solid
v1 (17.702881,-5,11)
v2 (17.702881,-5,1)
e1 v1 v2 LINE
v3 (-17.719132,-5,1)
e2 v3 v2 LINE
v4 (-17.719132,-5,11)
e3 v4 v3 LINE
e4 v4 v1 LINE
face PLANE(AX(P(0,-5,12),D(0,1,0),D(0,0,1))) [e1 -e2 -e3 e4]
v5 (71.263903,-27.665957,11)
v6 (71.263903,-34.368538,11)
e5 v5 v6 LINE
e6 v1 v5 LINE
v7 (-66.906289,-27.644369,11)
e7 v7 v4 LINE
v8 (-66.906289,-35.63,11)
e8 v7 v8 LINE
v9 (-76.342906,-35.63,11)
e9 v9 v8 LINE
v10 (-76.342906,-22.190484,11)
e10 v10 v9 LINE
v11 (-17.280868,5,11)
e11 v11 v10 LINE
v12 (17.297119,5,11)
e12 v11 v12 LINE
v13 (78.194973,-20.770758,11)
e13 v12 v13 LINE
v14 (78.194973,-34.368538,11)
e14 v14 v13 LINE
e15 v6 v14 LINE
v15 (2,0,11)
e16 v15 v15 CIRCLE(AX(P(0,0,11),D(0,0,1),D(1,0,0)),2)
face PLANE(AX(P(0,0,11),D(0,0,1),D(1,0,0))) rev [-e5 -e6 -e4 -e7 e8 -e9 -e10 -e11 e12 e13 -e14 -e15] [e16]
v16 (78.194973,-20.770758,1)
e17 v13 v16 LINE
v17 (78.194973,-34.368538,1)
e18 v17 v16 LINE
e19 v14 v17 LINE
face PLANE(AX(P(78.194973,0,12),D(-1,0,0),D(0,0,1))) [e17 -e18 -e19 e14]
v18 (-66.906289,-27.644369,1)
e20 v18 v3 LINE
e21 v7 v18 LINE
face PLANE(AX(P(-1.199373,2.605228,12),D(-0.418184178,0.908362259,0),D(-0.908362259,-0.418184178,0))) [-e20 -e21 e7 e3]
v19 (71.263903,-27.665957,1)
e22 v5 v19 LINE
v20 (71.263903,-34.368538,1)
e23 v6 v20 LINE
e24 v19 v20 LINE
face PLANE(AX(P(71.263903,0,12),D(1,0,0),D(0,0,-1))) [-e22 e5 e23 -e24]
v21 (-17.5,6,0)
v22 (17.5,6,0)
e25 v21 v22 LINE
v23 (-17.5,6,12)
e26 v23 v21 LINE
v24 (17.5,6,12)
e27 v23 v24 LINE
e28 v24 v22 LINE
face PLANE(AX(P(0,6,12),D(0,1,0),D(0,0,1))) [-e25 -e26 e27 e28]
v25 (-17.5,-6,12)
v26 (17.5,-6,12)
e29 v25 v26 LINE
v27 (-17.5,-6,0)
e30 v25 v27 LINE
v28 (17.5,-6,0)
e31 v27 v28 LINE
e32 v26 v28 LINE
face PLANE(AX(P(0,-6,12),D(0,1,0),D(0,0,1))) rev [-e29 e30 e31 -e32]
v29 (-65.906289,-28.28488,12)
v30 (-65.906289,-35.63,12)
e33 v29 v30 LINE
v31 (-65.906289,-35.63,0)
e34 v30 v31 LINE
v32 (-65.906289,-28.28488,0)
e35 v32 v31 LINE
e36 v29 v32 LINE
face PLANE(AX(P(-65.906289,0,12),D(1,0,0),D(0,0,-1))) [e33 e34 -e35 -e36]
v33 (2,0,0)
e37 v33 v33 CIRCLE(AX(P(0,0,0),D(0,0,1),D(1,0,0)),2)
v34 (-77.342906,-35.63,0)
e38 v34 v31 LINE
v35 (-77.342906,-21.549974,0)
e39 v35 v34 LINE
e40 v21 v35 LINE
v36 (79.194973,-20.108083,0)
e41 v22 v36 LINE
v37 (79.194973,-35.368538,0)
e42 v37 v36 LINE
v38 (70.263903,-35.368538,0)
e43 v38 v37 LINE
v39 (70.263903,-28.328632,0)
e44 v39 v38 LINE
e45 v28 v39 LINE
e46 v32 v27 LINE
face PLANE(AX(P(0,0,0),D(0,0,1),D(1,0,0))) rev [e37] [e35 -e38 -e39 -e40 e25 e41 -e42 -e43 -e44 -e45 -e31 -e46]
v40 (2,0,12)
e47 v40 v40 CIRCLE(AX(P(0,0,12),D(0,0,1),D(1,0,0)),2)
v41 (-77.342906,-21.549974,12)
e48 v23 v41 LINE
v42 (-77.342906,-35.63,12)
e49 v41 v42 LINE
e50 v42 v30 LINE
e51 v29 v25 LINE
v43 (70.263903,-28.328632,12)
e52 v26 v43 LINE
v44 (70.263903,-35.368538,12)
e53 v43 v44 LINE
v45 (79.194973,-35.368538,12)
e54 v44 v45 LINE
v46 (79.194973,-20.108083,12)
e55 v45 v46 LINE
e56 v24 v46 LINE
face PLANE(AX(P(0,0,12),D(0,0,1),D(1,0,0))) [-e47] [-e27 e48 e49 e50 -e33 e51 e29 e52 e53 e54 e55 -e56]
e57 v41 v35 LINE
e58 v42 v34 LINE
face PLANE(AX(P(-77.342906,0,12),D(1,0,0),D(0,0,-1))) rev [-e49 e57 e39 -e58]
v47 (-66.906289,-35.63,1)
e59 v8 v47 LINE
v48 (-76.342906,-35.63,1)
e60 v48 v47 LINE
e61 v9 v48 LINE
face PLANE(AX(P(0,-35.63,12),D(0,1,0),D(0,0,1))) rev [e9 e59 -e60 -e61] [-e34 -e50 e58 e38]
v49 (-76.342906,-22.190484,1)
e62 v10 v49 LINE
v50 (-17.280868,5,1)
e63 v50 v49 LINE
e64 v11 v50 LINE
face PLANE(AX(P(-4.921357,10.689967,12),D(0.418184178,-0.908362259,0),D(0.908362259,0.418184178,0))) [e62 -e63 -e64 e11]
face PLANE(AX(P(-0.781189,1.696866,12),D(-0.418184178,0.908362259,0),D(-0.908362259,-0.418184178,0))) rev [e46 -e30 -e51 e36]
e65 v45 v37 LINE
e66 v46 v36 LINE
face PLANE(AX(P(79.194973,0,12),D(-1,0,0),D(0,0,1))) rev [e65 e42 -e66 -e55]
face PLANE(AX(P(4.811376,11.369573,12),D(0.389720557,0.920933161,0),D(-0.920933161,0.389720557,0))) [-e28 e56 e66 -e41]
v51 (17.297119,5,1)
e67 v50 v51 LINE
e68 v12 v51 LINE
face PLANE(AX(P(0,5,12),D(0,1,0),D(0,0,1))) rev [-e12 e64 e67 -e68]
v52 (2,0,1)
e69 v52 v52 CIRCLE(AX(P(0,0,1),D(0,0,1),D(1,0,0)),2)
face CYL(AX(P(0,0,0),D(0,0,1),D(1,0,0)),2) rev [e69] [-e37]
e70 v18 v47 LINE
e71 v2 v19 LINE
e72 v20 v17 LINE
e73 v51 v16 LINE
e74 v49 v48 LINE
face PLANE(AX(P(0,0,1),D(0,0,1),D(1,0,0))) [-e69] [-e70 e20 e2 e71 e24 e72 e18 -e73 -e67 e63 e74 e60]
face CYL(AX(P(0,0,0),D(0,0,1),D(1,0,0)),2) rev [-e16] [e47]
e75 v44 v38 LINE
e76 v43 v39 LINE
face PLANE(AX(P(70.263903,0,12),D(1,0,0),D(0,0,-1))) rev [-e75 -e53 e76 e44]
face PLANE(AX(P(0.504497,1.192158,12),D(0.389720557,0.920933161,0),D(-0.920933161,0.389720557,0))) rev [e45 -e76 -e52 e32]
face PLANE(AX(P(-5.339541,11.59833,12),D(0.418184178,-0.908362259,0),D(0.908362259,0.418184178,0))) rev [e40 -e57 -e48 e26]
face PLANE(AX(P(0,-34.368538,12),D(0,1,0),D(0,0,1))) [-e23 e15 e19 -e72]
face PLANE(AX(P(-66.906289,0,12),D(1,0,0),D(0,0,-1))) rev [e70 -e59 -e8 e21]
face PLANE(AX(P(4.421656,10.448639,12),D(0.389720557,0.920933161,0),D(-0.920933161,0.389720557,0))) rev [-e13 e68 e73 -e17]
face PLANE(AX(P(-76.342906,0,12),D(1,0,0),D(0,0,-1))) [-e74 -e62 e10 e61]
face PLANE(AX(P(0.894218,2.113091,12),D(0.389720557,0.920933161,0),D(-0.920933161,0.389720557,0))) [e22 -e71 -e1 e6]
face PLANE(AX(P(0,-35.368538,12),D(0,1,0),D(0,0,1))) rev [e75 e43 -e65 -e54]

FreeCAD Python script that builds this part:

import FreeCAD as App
import Part
import Sketcher

V = App.Vector
Q = App.Units.Quantity


def faces_at(feature, points):
    """Names of the faces that lie closest to the given points."""
    faces = feature.Shape.Faces
    near = lambda p: min(range(len(faces)), key=lambda i: faces[i].distToShape(Part.Vertex(*p))[0])
    return sorted({f"Face{near(p) + 1}" for p in points})

doc = App.newDocument("Part")
body = doc.addObject("PartDesign::Body", "Body")

sketch1 = doc.addObject("Sketcher::SketchObject", "Sketch")
body.addObject(sketch1)
sketch1.AttachmentSupport = (doc.XY_Plane, [""])
sketch1.MapMode = "FlatFace"
sketch1.addGeometry([
    Part.LineSegment(V(-17.5, 6, 0), V(-77.342906, -21.549974, 0)),
    Part.LineSegment(V(-77.342906, -21.549974, 0), V(-77.342906, -35.63, 0)),
    Part.LineSegment(V(-77.342906, -35.63, 0), V(-65.906289, -35.63, 0)),
    Part.LineSegment(V(-65.906289, -35.63, 0), V(-65.906289, -28.28488, 0)),
    Part.LineSegment(V(-65.906289, -28.28488, 0), V(-17.5, -6, 0)),
    Part.LineSegment(V(-17.5, -6, 0), V(17.5, -6, 0)),
    Part.LineSegment(V(17.5, -6, 0), V(70.263903, -28.328632, 0)),
    Part.LineSegment(V(70.263903, -28.328632, 0), V(70.263903, -35.368538, 0)),
    Part.LineSegment(V(70.263903, -35.368538, 0), V(79.194973, -35.368538, 0)),
    Part.LineSegment(V(79.194973, -35.368538, 0), V(79.194973, -20.108083, 0)),
    Part.LineSegment(V(79.194973, -20.108083, 0), V(17.5, 6, 0)),
    Part.LineSegment(V(17.5, 6, 0), V(-17.5, 6, 0)),
], False)
sketch1.addConstraint([
    Sketcher.Constraint("Coincident", 0, 2, 1, 1),
    Sketcher.Constraint("Coincident", 1, 2, 2, 1),
    Sketcher.Constraint("Coincident", 2, 2, 3, 1),
    Sketcher.Constraint("Coincident", 3, 2, 4, 1),
    Sketcher.Constraint("Coincident", 4, 2, 5, 1),
    Sketcher.Constraint("Coincident", 5, 2, 6, 1),
    Sketcher.Constraint("Coincident", 6, 2, 7, 1),
    Sketcher.Constraint("Coincident", 7, 2, 8, 1),
    Sketcher.Constraint("Coincident", 8, 2, 9, 1),
    Sketcher.Constraint("Coincident", 9, 2, 10, 1),
    Sketcher.Constraint("Coincident", 10, 2, 11, 1),
    Sketcher.Constraint("Coincident", 11, 2, 0, 1),
    Sketcher.Constraint("Vertical", 1),
    Sketcher.Constraint("Horizontal", 2),
    Sketcher.Constraint("Vertical", 3),
    Sketcher.Constraint("Horizontal", 5),
    Sketcher.Constraint("Vertical", 7),
    Sketcher.Constraint("Horizontal", 8),
    Sketcher.Constraint("Vertical", 9),
    Sketcher.Constraint("Horizontal", 11),
    Sketcher.Constraint("Symmetric", 4, 2, 10, 2, -1, 1),
    Sketcher.Constraint("Parallel", 0, 4),
    Sketcher.Constraint("Parallel", 6, 10),
    Sketcher.Constraint("Vertical", 5, 2, 10, 2),
    Sketcher.Constraint("Vertical", 4, 2, 11, 2),
    Sketcher.Constraint("DistanceX", 5, 1, 5, 2, Q("35 mm")),
    Sketcher.Constraint("DistanceY", 4, 2, -1, 1, Q("6 mm")),
    Sketcher.Constraint("Angle", 0, Q("-155.28 deg")),
    Sketcher.Constraint("Distance", 0, Q("65.88 mm")),
    Sketcher.Constraint("DistanceY", 1, 2, -1, 1, Q("35.63 mm")),
    Sketcher.Constraint("DistanceX", 8, 1, 8, 2, Q("8.93107 mm")),
    Sketcher.Constraint("DistanceY", 3, 1, 3, 2, Q("7.34512 mm")),
    Sketcher.Constraint("DistanceY", 7, 2, 7, 1, Q("7.039905 mm")),
    Sketcher.Constraint("DistanceY", 9, 1, 9, 2, Q("15.260455 mm")),
    Sketcher.Constraint("DistanceX", 0, 2, 6, 2, Q("147.606809 mm")),
])
pad1 = doc.addObject("PartDesign::Pad", "Pad")
body.addObject(pad1)
pad1.Profile = sketch1
pad1.Length = 12
doc.recompute()

thickness = doc.addObject("PartDesign::Thickness", "Thickness")
body.addObject(thickness)
thickness.Base = (pad1, faces_at(pad1, [(-71.625, -35.63, 6)]))
thickness.Value = 1
thickness.Reversed = True
thickness.Join = "Intersection"

sketch2 = doc.addObject("Sketcher::SketchObject", "Sketch001")
body.addObject(sketch2)
sketch2.AttachmentSupport = (doc.XZ_Plane, [""])
sketch2.MapMode = "FlatFace"
sketch2.AttachmentOffset = App.Placement(V(0, 0, 35.63), App.Rotation())
sketch2.addGeometry([
    Part.LineSegment(V(84.157094, 11.101364, 0), V(84.157094, 1.101364, 0)),
    Part.LineSegment(V(84.157094, 1.101364, 0), V(94.157094, 1.101364, 0)),
    Part.LineSegment(V(94.157094, 1.101364, 0), V(94.157094, 11.101364, 0)),
    Part.LineSegment(V(94.157094, 11.101364, 0), V(84.157094, 11.101364, 0)),
], False)
sketch2.addConstraint([
    Sketcher.Constraint("Coincident", 0, 2, 1, 1),
    Sketcher.Constraint("Coincident", 1, 2, 2, 1),
    Sketcher.Constraint("Coincident", 2, 2, 3, 1),
    Sketcher.Constraint("Coincident", 3, 2, 0, 1),
    Sketcher.Constraint("Vertical", 0),
    Sketcher.Constraint("Horizontal", 1),
    Sketcher.Constraint("Vertical", 2),
    Sketcher.Constraint("Horizontal", 3),
    Sketcher.Constraint("Equal", 3, 0),
    Sketcher.Constraint("DistanceX", 1, 1, 1, 2, Q("10 mm")),
    Sketcher.Constraint("DistanceX", -1, 1, 0, 2, Q("84.157094 mm")),
    Sketcher.Constraint("DistanceY", -1, 1, 0, 2, Q("1.101364 mm")),
])
pocket1 = doc.addObject("PartDesign::Pocket", "Pocket")
body.addObject(pocket1)
pocket1.Profile = sketch2
pocket1.Length = 12

sketch3 = doc.addObject("Sketcher::SketchObject", "Sketch002")
body.addObject(sketch3)
sketch3.AttachmentSupport = (doc.XY_Plane, [""])
sketch3.MapMode = "FlatFace"
sketch3.AttachmentOffset = App.Placement(V(0, 0, 12), App.Rotation())
sketch3.addGeometry(Part.Circle(V(0, 0, 0), V(0, 0, 1), 2), False)
sketch3.addConstraint([
    Sketcher.Constraint("Coincident", 0, 3, -1, 1),
    Sketcher.Constraint("Diameter", 0, Q("4 mm")),
])
pocket2 = doc.addObject("PartDesign::Pocket", "Pocket001")
body.addObject(pocket2)
pocket2.Profile = sketch3
pocket2.Length = 12

sketch4 = doc.addObject("Sketcher::SketchObject", "Sketch003")
body.addObject(sketch4)
sketch4.AttachmentSupport = (doc.XZ_Plane, [""])
sketch4.MapMode = "FlatFace"
sketch4.AttachmentOffset = App.Placement(V(0, 0, 35.63), App.Rotation())
sketch4.addGeometry([
    Part.LineSegment(V(82.939086, 12, 0), V(82.939086, 0, 0)),
    Part.LineSegment(V(82.939086, 0, 0), V(83.157094, 0, 0)),
    Part.LineSegment(V(83.157094, 0, 0), V(83.157094, 12, 0)),
    Part.LineSegment(V(83.157094, 12, 0), V(82.939086, 12, 0)),
], False)
sketch4.addConstraint([
    Sketcher.Constraint("Coincident", 0, 2, 1, 1),
    Sketcher.Constraint("Coincident", 1, 2, 2, 1),
    Sketcher.Constraint("Coincident", 2, 2, 3, 1),
    Sketcher.Constraint("Coincident", 3, 2, 0, 1),
    Sketcher.Constraint("Vertical", 0),
    Sketcher.Constraint("Horizontal", 1),
    Sketcher.Constraint("Vertical", 2),
    Sketcher.Constraint("Horizontal", 3),
    Sketcher.Constraint("PointOnObject", 0, 2, -1),
    Sketcher.Constraint("DistanceY", 0, 2, 0, 1, Q("12 mm")),
    Sketcher.Constraint("DistanceX", 1, 1, 1, 2, Q("0.218008 mm")),
    Sketcher.Constraint("DistanceX", -1, 1, 0, 2, Q("82.939086 mm")),
])
pocket3 = doc.addObject("PartDesign::Pocket", "Pocket002")
body.addObject(pocket3)
pocket3.Profile = sketch4
pocket3.Length = 1.937483

doc.recompute()
